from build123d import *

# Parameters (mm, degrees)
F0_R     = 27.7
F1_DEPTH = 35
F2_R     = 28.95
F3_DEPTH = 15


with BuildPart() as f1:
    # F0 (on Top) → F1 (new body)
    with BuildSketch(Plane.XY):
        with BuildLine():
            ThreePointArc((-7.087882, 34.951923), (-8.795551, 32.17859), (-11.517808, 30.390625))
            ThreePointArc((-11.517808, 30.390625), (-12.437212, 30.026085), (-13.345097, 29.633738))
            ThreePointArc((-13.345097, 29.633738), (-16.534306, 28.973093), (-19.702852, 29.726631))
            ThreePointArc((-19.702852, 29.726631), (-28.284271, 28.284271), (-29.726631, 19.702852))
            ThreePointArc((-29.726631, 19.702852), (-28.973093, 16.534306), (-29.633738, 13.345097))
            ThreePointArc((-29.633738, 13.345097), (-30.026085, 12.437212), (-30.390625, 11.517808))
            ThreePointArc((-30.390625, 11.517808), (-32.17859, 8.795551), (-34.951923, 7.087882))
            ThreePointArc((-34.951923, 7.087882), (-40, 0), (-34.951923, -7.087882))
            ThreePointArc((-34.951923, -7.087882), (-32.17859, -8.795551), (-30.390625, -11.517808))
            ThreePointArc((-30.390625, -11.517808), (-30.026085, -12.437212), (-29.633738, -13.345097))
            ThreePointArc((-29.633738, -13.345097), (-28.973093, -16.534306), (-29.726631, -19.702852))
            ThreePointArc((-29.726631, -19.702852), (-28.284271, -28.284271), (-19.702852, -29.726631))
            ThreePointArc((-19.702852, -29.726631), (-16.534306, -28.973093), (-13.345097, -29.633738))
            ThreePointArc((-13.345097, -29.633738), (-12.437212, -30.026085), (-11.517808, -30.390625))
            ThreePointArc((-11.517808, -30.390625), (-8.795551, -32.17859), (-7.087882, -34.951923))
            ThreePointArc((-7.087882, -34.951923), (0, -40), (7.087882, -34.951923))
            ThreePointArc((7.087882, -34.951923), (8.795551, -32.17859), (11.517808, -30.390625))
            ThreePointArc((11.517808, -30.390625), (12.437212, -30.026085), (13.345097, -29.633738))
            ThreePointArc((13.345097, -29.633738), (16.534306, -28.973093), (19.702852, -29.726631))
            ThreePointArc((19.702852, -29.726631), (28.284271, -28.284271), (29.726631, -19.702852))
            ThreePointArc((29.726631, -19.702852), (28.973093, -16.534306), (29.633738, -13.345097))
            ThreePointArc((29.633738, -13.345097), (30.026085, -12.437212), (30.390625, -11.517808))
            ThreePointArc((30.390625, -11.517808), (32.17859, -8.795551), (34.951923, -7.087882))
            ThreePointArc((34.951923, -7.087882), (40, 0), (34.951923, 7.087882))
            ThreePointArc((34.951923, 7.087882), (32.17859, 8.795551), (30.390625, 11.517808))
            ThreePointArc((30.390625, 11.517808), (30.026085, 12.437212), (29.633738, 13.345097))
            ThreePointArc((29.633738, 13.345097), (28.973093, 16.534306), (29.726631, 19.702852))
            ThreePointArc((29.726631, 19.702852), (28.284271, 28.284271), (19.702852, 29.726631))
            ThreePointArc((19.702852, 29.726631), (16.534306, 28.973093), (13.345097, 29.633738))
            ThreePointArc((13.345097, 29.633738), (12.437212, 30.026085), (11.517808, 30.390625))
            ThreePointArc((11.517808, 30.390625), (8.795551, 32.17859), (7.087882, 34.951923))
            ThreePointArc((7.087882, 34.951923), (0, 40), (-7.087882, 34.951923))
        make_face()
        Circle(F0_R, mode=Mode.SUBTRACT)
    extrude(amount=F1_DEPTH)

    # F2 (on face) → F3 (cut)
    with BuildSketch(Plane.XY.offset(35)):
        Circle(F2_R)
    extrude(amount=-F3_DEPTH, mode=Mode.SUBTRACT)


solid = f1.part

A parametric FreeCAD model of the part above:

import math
import FreeCAD as App
import Part
import Sketcher
from FreeCAD import Vector

doc = App.newDocument("Part")
body = doc.addObject("PartDesign::Body", "Body")

# Sketch on XY plane
sketch1 = doc.addObject("Sketcher::SketchObject", "Sketch")
body.addObject(sketch1)
sketch1.AttachmentSupport = (doc.XY_Plane, [""])
sketch1.MapMode = "FlatFace"
sketch1.addGeometry(Part.ArcOfCircle(Part.Circle(Vector(-14.2, 37.4, 0), Vector(0, 0, 1), 7.5), math.radians(-69), math.radians(-19)), False)
sketch1.addGeometry(Part.ArcOfCircle(Part.Circle(Vector(0, 0, 0), Vector(0, 0, 1), 32.5), math.radians(110.76), math.radians(114.24)), False)
sketch1.addGeometry(Part.ArcOfCircle(Part.Circle(Vector(-16.4, 36.5, 0), Vector(0, 0, 1), 7.5), math.radians(-116), math.radians(-66)), False)
sketch1.addGeometry(Part.ArcOfCircle(Part.Circle(Vector(-23, 23, 0), Vector(0, 0, 1), 7.5), math.radians(64), math.radians(206)), False)
sketch1.addGeometry(Part.ArcOfCircle(Part.Circle(Vector(-36.5, 16.4, 0), Vector(0, 0, 1), 7.5), math.radians(-24), math.radians(26)), False)
sketch1.addGeometry(Part.ArcOfCircle(Part.Circle(Vector(0, 0, 0), Vector(0, 0, 1), 32.5), math.radians(155.76), math.radians(159.24)), False)
sketch1.addGeometry(Part.ArcOfCircle(Part.Circle(Vector(-37.4, 14.2, 0), Vector(0, 0, 1), 7.5), math.radians(-71), math.radians(-21)), False)
sketch1.addGeometry(Part.ArcOfCircle(Part.Circle(Vector(-32.5, 0, 0), Vector(0, 0, 1), 7.5), math.radians(109), math.radians(251)), False)
sketch1.addGeometry(Part.ArcOfCircle(Part.Circle(Vector(-37.4, -14.2, 0), Vector(0, 0, 1), 7.5), math.radians(21), math.radians(71)), False)
sketch1.addGeometry(Part.ArcOfCircle(Part.Circle(Vector(0, 0, 0), Vector(0, 0, 1), 32.5), math.radians(-159.24), math.radians(-155.76)), False)
sketch1.addGeometry(Part.ArcOfCircle(Part.Circle(Vector(-36.5, -16.4, 0), Vector(0, 0, 1), 7.5), math.radians(-26), math.radians(24)), False)
sketch1.addGeometry(Part.ArcOfCircle(Part.Circle(Vector(-23, -23, 0), Vector(0, 0, 1), 7.5), math.radians(154), math.radians(296)), False)
sketch1.addGeometry(Part.ArcOfCircle(Part.Circle(Vector(-16.4, -36.5, 0), Vector(0, 0, 1), 7.5), math.radians(66), math.radians(116)), False)
sketch1.addGeometry(Part.ArcOfCircle(Part.Circle(Vector(0, 0, 0), Vector(0, 0, 1), 32.5), math.radians(-114.24), math.radians(-110.76)), False)
sketch1.addGeometry(Part.ArcOfCircle(Part.Circle(Vector(-14.2, -37.4, 0), Vector(0, 0, 1), 7.5), math.radians(19), math.radians(69)), False)
sketch1.addGeometry(Part.ArcOfCircle(Part.Circle(Vector(0, -32.5, 0), Vector(0, 0, 1), 7.5), math.radians(-161), math.radians(-19)), False)
sketch1.addGeometry(Part.ArcOfCircle(Part.Circle(Vector(14.2, -37.4, 0), Vector(0, 0, 1), 7.5), math.radians(111), math.radians(161)), False)
sketch1.addGeometry(Part.ArcOfCircle(Part.Circle(Vector(0, 0, 0), Vector(0, 0, 1), 32.5), math.radians(-69.24), math.radians(-65.76)), False)
sketch1.addGeometry(Part.ArcOfCircle(Part.Circle(Vector(16.4, -36.5, 0), Vector(0, 0, 1), 7.5), math.radians(64), math.radians(114)), False)
sketch1.addGeometry(Part.ArcOfCircle(Part.Circle(Vector(23, -23, 0), Vector(0, 0, 1), 7.5), math.radians(-116), math.radians(26)), False)
sketch1.addGeometry(Part.ArcOfCircle(Part.Circle(Vector(36.5, -16.4, 0), Vector(0, 0, 1), 7.5), math.radians(156), math.radians(206)), False)
sketch1.addGeometry(Part.ArcOfCircle(Part.Circle(Vector(0, 0, 0), Vector(0, 0, 1), 32.5), math.radians(-24.24), math.radians(-20.76)), False)
sketch1.addGeometry(Part.ArcOfCircle(Part.Circle(Vector(37.4, -14.2, 0), Vector(0, 0, 1), 7.5), math.radians(109), math.radians(159)), False)
sketch1.addGeometry(Part.ArcOfCircle(Part.Circle(Vector(32.5, 0, 0), Vector(0, 0, 1), 7.5), math.radians(-71), math.radians(71)), False)
sketch1.addGeometry(Part.ArcOfCircle(Part.Circle(Vector(37.4, 14.2, 0), Vector(0, 0, 1), 7.5), math.radians(-159), math.radians(-109)), False)
sketch1.addGeometry(Part.ArcOfCircle(Part.Circle(Vector(0, 0, 0), Vector(0, 0, 1), 32.5), math.radians(20.76), math.radians(24.24)), False)
sketch1.addGeometry(Part.ArcOfCircle(Part.Circle(Vector(36.5, 16.4, 0), Vector(0, 0, 1), 7.5), math.radians(154), math.radians(204)), False)
sketch1.addGeometry(Part.ArcOfCircle(Part.Circle(Vector(23, 23, 0), Vector(0, 0, 1), 7.5), math.radians(-26), math.radians(116)), False)
sketch1.addGeometry(Part.ArcOfCircle(Part.Circle(Vector(16.4, 36.5, 0), Vector(0, 0, 1), 7.5), math.radians(-114), math.radians(-64)), False)
sketch1.addGeometry(Part.ArcOfCircle(Part.Circle(Vector(0, 0, 0), Vector(0, 0, 1), 32.5), math.radians(65.76), math.radians(69.24)), False)
sketch1.addGeometry(Part.ArcOfCircle(Part.Circle(Vector(14.2, 37.4, 0), Vector(0, 0, 1), 7.5), math.radians(-161), math.radians(-111)), False)
sketch1.addGeometry(Part.ArcOfCircle(Part.Circle(Vector(0, 32.5, 0), Vector(0, 0, 1), 7.5), math.radians(19), math.radians(161)), False)
sketch1.addGeometry(Part.Circle(Vector(0, 0, 0), Vector(0, 0, 1), 27.7), False)
sketch1.addConstraint(Sketcher.Constraint("Tangent", 0, 1, 1, 1))
sketch1.addConstraint(Sketcher.Constraint("Tangent", 1, 2, 2, 2))
sketch1.addConstraint(Sketcher.Constraint("Tangent", 2, 1, 3, 1))
sketch1.addConstraint(Sketcher.Constraint("Tangent", 3, 2, 4, 2))
sketch1.addConstraint(Sketcher.Constraint("Tangent", 4, 1, 5, 1))
sketch1.addConstraint(Sketcher.Constraint("Tangent", 5, 2, 6, 2))
sketch1.addConstraint(Sketcher.Constraint("Tangent", 6, 1, 7, 1))
sketch1.addConstraint(Sketcher.Constraint("Tangent", 7, 2, 8, 2))
sketch1.addConstraint(Sketcher.Constraint("Tangent", 8, 1, 9, 1))
sketch1.addConstraint(Sketcher.Constraint("Tangent", 9, 2, 10, 2))
sketch1.addConstraint(Sketcher.Constraint("Tangent", 10, 1, 11, 1))
sketch1.addConstraint(Sketcher.Constraint("Tangent", 11, 2, 12, 2))
sketch1.addConstraint(Sketcher.Constraint("Tangent", 12, 1, 13, 1))
sketch1.addConstraint(Sketcher.Constraint("Tangent", 13, 2, 14, 2))
sketch1.addConstraint(Sketcher.Constraint("Tangent", 14, 1, 15, 1))
sketch1.addConstraint(Sketcher.Constraint("Tangent", 15, 2, 16, 2))
sketch1.addConstraint(Sketcher.Constraint("Tangent", 16, 1, 17, 1))
sketch1.addConstraint(Sketcher.Constraint("Tangent", 17, 2, 18, 2))
sketch1.addConstraint(Sketcher.Constraint("Tangent", 18, 1, 19, 1))
sketch1.addConstraint(Sketcher.Constraint("Tangent", 19, 2, 20, 2))
sketch1.addConstraint(Sketcher.Constraint("Tangent", 20, 1, 21, 1))
sketch1.addConstraint(Sketcher.Constraint("Tangent", 21, 2, 22, 2))
sketch1.addConstraint(Sketcher.Constraint("Tangent", 22, 1, 23, 1))
sketch1.addConstraint(Sketcher.Constraint("Tangent", 23, 2, 24, 2))
sketch1.addConstraint(Sketcher.Constraint("Tangent", 24, 1, 25, 1))
sketch1.addConstraint(Sketcher.Constraint("Tangent", 25, 2, 26, 2))
sketch1.addConstraint(Sketcher.Constraint("Tangent", 26, 1, 27, 1))
sketch1.addConstraint(Sketcher.Constraint("Tangent", 27, 2, 28, 2))
sketch1.addConstraint(Sketcher.Constraint("Tangent", 28, 1, 29, 1))
sketch1.addConstraint(Sketcher.Constraint("Tangent", 29, 2, 30, 2))
sketch1.addConstraint(Sketcher.Constraint("Tangent", 30, 1, 31, 1))
sketch1.addConstraint(Sketcher.Constraint("Tangent", 31, 2, 0, 2))
sketch1.addConstraint(Sketcher.Constraint("Coincident", 32, 3, -1, 1))
sketch1.addConstraint(Sketcher.Constraint("Equal", 2, 3))
sketch1.addConstraint(Sketcher.Constraint("Equal", 3, 4))
sketch1.addConstraint(Sketcher.Constraint("Equal", 1, 5))
sketch1.addConstraint(Sketcher.Constraint("Equal", 0, 6))
sketch1.addConstraint(Sketcher.Constraint("Equal", 4, 7))
sketch1.addConstraint(Sketcher.Constraint("Equal", 6, 8))
sketch1.addConstraint(Sketcher.Constraint("Equal", 5, 9))
sketch1.addConstraint(Sketcher.Constraint("Equal", 7, 10))
sketch1.addConstraint(Sketcher.Constraint("Equal", 10, 11))
sketch1.addConstraint(Sketcher.Constraint("Equal", 11, 12))
sketch1.addConstraint(Sketcher.Constraint("Equal", 9, 13))
sketch1.addConstraint(Sketcher.Constraint("Equal", 8, 14))
sketch1.addConstraint(Sketcher.Constraint("Equal", 12, 15))
sketch1.addConstraint(Sketcher.Constraint("Equal", 14, 16))
sketch1.addConstraint(Sketcher.Constraint("Equal", 13, 17))
sketch1.addConstraint(Sketcher.Constraint("Equal", 15, 18))
sketch1.addConstraint(Sketcher.Constraint("Equal", 18, 19))
sketch1.addConstraint(Sketcher.Constraint("Equal", 19, 20))
sketch1.addConstraint(Sketcher.Constraint("Equal", 17, 21))
sketch1.addConstraint(Sketcher.Constraint("Equal", 16, 22))
sketch1.addConstraint(Sketcher.Constraint("Equal", 20, 23))
sketch1.addConstraint(Sketcher.Constraint("Equal", 22, 24))
sketch1.addConstraint(Sketcher.Constraint("Equal", 21, 25))
sketch1.addConstraint(Sketcher.Constraint("Equal", 23, 26))
sketch1.addConstraint(Sketcher.Constraint("Equal", 26, 27))
sketch1.addConstraint(Sketcher.Constraint("Equal", 27, 28))
sketch1.addConstraint(Sketcher.Constraint("Equal", 25, 29))
sketch1.addConstraint(Sketcher.Constraint("Equal", 24, 30))
sketch1.addConstraint(Sketcher.Constraint("Equal", 28, 31))
sketch1.addConstraint(Sketcher.Constraint("Symmetric", 0, 3, 16, 3, -1, 1))
sketch1.addConstraint(Sketcher.Constraint("Symmetric", 2, 3, 18, 3, -1, 1))
sketch1.addConstraint(Sketcher.Constraint("Symmetric", 4, 3, 20, 3, -1, 1))
sketch1.addConstraint(Sketcher.Constraint("Symmetric", 6, 3, 22, 3, -1, 1))
sketch1.addConstraint(Sketcher.Constraint("Symmetric", 8, 3, 24, 3, -1, 1))
sketch1.addConstraint(Sketcher.Constraint("Symmetric", 10, 3, 26, 3, -1, 1))
sketch1.addConstraint(Sketcher.Constraint("Symmetric", 12, 3, 28, 3, -1, 1))
sketch1.addConstraint(Sketcher.Constraint("Symmetric", 14, 3, 30, 3, -1, 1))
sketch1.addConstraint(Sketcher.Constraint("Symmetric", 14, 3, 16, 3, -2))
sketch1.addConstraint(Sketcher.Constraint("Symmetric", 12, 3, 18, 3, -2))
sketch1.addConstraint(Sketcher.Constraint("Symmetric", 10, 3, 20, 3, -2))
sketch1.addConstraint(Sketcher.Constraint("Symmetric", 8, 3, 22, 3, -2))
sketch1.addConstraint(Sketcher.Constraint("Diameter", 32, 55.4))
sketch1.addConstraint(Sketcher.Constraint("Radius", 2, 7.5))
sketch1.addConstraint(Sketcher.Constraint("DistanceX", 7, 3, -1, 1, 32.5))
sketch1.addConstraint(Sketcher.Constraint("DistanceY", 15, 3, -1, 1, 32.5))
sketch1.addConstraint(Sketcher.Constraint("Radius", 0, 7.500004))
sketch1.addConstraint(Sketcher.Constraint("Radius", 1, 32.499756))
sketch1.addConstraint(Sketcher.Constraint("DistanceY", -1, 1, 0, 3, 37.403849))
sketch1.addConstraint(Sketcher.Constraint("DistanceY", -1, 1, 1, 3, 0.000221))
sketch1.addConstraint(Sketcher.Constraint("DistanceX", 3, 3, -1, 1, 22.98097))
sketch1.addConstraint(Sketcher.Constraint("DistanceY", -1, 1, 3, 3, 22.98097))
sketch1.addConstraint(Sketcher.Constraint("DistanceX", 5, 3, -1, 1, 0.000221))
sketch1.addConstraint(Sketcher.Constraint("DistanceX", 6, 3, -1, 1, 37.403849))
pad1 = doc.addObject("PartDesign::Pad", "Pad")
body.addObject(pad1)
pad1.Profile = sketch1
pad1.Length = 35

# Sketch on XY plane
sketch2 = doc.addObject("Sketcher::SketchObject", "Sketch001")
body.addObject(sketch2)
sketch2.AttachmentSupport = (doc.XY_Plane, [""])
sketch2.MapMode = "FlatFace"
sketch2.AttachmentOffset = App.Placement(Vector(0, 0, 35), App.Rotation())
sketch2.addGeometry(Part.Circle(Vector(0, 0, 0), Vector(0, 0, 1), 29), False)
sketch2.addConstraint(Sketcher.Constraint("Coincident", 0, 3, -1, 1))
sketch2.addConstraint(Sketcher.Constraint("Diameter", 0, 57.9))
pocket1 = doc.addObject("PartDesign::Pocket", "Pocket")
body.addObject(pocket1)
pocket1.Profile = sketch2
pocket1.Length = 15

doc.recompute()
